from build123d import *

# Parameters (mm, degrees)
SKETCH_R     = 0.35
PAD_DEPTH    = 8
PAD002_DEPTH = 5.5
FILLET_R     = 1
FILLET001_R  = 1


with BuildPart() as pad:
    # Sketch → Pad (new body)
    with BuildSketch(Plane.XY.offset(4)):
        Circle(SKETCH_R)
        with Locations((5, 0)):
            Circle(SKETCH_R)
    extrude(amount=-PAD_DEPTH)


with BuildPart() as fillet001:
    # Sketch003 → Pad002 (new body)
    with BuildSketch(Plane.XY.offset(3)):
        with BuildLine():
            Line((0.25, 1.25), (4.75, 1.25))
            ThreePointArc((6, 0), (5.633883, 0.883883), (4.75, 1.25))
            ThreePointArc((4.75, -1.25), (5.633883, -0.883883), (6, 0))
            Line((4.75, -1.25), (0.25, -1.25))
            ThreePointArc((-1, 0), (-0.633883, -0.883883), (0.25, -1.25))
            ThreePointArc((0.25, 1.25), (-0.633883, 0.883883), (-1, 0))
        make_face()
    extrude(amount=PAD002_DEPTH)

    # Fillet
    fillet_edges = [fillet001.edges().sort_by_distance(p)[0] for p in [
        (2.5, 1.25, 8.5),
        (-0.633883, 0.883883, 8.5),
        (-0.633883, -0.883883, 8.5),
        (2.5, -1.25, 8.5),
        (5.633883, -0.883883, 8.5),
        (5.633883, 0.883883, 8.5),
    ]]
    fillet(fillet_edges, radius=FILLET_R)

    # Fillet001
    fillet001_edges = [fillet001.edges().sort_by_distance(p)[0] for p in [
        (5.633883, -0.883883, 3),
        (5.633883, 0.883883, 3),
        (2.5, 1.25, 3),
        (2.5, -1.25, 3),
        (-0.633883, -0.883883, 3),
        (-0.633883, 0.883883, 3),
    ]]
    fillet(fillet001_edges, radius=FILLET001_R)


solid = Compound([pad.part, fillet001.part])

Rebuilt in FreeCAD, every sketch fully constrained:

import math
import FreeCAD as App
import Part
import Sketcher

V = App.Vector


def edges_at(feature, points):
    """Names of the edges that pass closest to the given points."""
    edges = feature.Shape.Edges
    near = lambda p: min(range(len(edges)), key=lambda i: edges[i].distToShape(Part.Vertex(*p))[0])
    return sorted({f"Edge{near(p) + 1}" for p in points})

doc = App.newDocument("Part")
body = doc.addObject("PartDesign::Body", "Body")
body.AllowCompound = True

sketch1 = doc.addObject("Sketcher::SketchObject", "Sketch")
body.addObject(sketch1)
sketch1.AttachmentSupport = (doc.XY_Plane, [""])
sketch1.MapMode = "FlatFace"
sketch1.AttachmentOffset = App.Placement(V(0, 0, 4), App.Rotation())
sketch1.addGeometry([
    Part.Circle(V(0, 0, 0), V(0, 0, 1), 0.35),
    Part.Circle(V(5, 0, 0), V(0, 0, 1), 0.35),
], False)
sketch1.addConstraint([
    Sketcher.Constraint("Coincident", 0, 3, -1, 1),
    Sketcher.Constraint("Equal", 0, 1),
    Sketcher.Constraint("PointOnObject", 1, 3, -1),
    Sketcher.Constraint("Diameter", 0, 0.7),
    Sketcher.Constraint("DistanceX", -1, 1, 1, 3, 5.0),
])
pad1 = doc.addObject("PartDesign::Pad", "Pad")
body.addObject(pad1)
pad1.Profile = sketch1
pad1.Length = 8
pad1.Reversed = True
body2 = doc.addObject("PartDesign::Body", "Body001")

sketch2 = doc.addObject("Sketcher::SketchObject", "Sketch001")
body2.addObject(sketch2)
sketch2.AttachmentSupport = (doc.getObject("XY_Plane001"), [""])
sketch2.MapMode = "FlatFace"
sketch2.AttachmentOffset = App.Placement(V(0, 0, 3), App.Rotation())
sketch2.addGeometry([
    Part.LineSegment(V(4.8, 1.2, 0), V(0.2, 1.2, 0)),
    Part.ArcOfCircle(Part.Circle(V(0.3, 0, 0), V(0, 0, 1), 1.3), math.radians(90), math.radians(180)),
    Part.ArcOfCircle(Part.Circle(V(0.3, 0, 0), V(0, 0, 1), 1.3), math.radians(-180), math.radians(-90)),
    Part.LineSegment(V(0.2, -1.2, 0), V(4.8, -1.2, 0)),
    Part.ArcOfCircle(Part.Circle(V(4.7, 0, 0), V(0, 0, 1), 1.3), math.radians(-90), math.radians(0)),
    Part.ArcOfCircle(Part.Circle(V(4.7, 0, 0), V(0, 0, 1), 1.3), math.radians(0), math.radians(90)),
], False)
sketch2.addConstraint([
    Sketcher.Constraint("Tangent", 0, 2, 1, 1),
    Sketcher.Constraint("Coincident", 1, 2, 2, 1),
    Sketcher.Constraint("Tangent", 2, 2, 3, 1),
    Sketcher.Constraint("Tangent", 3, 2, 4, 1),
    Sketcher.Constraint("Coincident", 4, 2, 5, 1),
    Sketcher.Constraint("Tangent", 5, 2, 0, 1),
    Sketcher.Constraint("Horizontal", 0),
    Sketcher.Constraint("Horizontal", 3),
    Sketcher.Constraint("Coincident", 2, 3, 1, 3),
    Sketcher.Constraint("Coincident", 5, 3, 4, 3),
    Sketcher.Constraint("PointOnObject", 1, 3, -1),
    Sketcher.Constraint("PointOnObject", 1, 2, -1),
    Sketcher.Constraint("PointOnObject", 4, 2, -1),
    Sketcher.Constraint("Radius", 1, 1.250002),
    Sketcher.Constraint("DistanceX", 0, 2, 0, 1, 4.5),
    Sketcher.Constraint("DistanceX", 1, 2, -1, 1, 1.0),
])
pad2 = doc.addObject("PartDesign::Pad", "Pad001")
body2.addObject(pad2)
pad2.Profile = sketch2
pad2.Length = 5.5
doc.recompute()

fillet = doc.addObject("PartDesign::Fillet", "Fillet")
body2.addObject(fillet)
fillet.Base = (pad2, edges_at(pad2, [
    (2.5, 1.25, 8.5),
    (-0.634, 0.884, 8.5),
    (-0.634, -0.884, 8.5),
    (2.5, -1.25, 8.5),
    (5.634, -0.884, 8.5),
    (5.634, 0.884, 8.5),
]))
fillet.Radius = 1
doc.recompute()

fillet2 = doc.addObject("PartDesign::Fillet", "Fillet001")
body2.addObject(fillet2)
fillet2.Base = (fillet, edges_at(fillet, [
    (5.634, -0.884, 3),
    (5.634, 0.884, 3),
    (2.5, 1.25, 3),
    (2.5, -1.25, 3),
    (-0.634, -0.884, 3),
    (-0.634, 0.884, 3),
]))
fillet2.Radius = 1

doc.recompute()
